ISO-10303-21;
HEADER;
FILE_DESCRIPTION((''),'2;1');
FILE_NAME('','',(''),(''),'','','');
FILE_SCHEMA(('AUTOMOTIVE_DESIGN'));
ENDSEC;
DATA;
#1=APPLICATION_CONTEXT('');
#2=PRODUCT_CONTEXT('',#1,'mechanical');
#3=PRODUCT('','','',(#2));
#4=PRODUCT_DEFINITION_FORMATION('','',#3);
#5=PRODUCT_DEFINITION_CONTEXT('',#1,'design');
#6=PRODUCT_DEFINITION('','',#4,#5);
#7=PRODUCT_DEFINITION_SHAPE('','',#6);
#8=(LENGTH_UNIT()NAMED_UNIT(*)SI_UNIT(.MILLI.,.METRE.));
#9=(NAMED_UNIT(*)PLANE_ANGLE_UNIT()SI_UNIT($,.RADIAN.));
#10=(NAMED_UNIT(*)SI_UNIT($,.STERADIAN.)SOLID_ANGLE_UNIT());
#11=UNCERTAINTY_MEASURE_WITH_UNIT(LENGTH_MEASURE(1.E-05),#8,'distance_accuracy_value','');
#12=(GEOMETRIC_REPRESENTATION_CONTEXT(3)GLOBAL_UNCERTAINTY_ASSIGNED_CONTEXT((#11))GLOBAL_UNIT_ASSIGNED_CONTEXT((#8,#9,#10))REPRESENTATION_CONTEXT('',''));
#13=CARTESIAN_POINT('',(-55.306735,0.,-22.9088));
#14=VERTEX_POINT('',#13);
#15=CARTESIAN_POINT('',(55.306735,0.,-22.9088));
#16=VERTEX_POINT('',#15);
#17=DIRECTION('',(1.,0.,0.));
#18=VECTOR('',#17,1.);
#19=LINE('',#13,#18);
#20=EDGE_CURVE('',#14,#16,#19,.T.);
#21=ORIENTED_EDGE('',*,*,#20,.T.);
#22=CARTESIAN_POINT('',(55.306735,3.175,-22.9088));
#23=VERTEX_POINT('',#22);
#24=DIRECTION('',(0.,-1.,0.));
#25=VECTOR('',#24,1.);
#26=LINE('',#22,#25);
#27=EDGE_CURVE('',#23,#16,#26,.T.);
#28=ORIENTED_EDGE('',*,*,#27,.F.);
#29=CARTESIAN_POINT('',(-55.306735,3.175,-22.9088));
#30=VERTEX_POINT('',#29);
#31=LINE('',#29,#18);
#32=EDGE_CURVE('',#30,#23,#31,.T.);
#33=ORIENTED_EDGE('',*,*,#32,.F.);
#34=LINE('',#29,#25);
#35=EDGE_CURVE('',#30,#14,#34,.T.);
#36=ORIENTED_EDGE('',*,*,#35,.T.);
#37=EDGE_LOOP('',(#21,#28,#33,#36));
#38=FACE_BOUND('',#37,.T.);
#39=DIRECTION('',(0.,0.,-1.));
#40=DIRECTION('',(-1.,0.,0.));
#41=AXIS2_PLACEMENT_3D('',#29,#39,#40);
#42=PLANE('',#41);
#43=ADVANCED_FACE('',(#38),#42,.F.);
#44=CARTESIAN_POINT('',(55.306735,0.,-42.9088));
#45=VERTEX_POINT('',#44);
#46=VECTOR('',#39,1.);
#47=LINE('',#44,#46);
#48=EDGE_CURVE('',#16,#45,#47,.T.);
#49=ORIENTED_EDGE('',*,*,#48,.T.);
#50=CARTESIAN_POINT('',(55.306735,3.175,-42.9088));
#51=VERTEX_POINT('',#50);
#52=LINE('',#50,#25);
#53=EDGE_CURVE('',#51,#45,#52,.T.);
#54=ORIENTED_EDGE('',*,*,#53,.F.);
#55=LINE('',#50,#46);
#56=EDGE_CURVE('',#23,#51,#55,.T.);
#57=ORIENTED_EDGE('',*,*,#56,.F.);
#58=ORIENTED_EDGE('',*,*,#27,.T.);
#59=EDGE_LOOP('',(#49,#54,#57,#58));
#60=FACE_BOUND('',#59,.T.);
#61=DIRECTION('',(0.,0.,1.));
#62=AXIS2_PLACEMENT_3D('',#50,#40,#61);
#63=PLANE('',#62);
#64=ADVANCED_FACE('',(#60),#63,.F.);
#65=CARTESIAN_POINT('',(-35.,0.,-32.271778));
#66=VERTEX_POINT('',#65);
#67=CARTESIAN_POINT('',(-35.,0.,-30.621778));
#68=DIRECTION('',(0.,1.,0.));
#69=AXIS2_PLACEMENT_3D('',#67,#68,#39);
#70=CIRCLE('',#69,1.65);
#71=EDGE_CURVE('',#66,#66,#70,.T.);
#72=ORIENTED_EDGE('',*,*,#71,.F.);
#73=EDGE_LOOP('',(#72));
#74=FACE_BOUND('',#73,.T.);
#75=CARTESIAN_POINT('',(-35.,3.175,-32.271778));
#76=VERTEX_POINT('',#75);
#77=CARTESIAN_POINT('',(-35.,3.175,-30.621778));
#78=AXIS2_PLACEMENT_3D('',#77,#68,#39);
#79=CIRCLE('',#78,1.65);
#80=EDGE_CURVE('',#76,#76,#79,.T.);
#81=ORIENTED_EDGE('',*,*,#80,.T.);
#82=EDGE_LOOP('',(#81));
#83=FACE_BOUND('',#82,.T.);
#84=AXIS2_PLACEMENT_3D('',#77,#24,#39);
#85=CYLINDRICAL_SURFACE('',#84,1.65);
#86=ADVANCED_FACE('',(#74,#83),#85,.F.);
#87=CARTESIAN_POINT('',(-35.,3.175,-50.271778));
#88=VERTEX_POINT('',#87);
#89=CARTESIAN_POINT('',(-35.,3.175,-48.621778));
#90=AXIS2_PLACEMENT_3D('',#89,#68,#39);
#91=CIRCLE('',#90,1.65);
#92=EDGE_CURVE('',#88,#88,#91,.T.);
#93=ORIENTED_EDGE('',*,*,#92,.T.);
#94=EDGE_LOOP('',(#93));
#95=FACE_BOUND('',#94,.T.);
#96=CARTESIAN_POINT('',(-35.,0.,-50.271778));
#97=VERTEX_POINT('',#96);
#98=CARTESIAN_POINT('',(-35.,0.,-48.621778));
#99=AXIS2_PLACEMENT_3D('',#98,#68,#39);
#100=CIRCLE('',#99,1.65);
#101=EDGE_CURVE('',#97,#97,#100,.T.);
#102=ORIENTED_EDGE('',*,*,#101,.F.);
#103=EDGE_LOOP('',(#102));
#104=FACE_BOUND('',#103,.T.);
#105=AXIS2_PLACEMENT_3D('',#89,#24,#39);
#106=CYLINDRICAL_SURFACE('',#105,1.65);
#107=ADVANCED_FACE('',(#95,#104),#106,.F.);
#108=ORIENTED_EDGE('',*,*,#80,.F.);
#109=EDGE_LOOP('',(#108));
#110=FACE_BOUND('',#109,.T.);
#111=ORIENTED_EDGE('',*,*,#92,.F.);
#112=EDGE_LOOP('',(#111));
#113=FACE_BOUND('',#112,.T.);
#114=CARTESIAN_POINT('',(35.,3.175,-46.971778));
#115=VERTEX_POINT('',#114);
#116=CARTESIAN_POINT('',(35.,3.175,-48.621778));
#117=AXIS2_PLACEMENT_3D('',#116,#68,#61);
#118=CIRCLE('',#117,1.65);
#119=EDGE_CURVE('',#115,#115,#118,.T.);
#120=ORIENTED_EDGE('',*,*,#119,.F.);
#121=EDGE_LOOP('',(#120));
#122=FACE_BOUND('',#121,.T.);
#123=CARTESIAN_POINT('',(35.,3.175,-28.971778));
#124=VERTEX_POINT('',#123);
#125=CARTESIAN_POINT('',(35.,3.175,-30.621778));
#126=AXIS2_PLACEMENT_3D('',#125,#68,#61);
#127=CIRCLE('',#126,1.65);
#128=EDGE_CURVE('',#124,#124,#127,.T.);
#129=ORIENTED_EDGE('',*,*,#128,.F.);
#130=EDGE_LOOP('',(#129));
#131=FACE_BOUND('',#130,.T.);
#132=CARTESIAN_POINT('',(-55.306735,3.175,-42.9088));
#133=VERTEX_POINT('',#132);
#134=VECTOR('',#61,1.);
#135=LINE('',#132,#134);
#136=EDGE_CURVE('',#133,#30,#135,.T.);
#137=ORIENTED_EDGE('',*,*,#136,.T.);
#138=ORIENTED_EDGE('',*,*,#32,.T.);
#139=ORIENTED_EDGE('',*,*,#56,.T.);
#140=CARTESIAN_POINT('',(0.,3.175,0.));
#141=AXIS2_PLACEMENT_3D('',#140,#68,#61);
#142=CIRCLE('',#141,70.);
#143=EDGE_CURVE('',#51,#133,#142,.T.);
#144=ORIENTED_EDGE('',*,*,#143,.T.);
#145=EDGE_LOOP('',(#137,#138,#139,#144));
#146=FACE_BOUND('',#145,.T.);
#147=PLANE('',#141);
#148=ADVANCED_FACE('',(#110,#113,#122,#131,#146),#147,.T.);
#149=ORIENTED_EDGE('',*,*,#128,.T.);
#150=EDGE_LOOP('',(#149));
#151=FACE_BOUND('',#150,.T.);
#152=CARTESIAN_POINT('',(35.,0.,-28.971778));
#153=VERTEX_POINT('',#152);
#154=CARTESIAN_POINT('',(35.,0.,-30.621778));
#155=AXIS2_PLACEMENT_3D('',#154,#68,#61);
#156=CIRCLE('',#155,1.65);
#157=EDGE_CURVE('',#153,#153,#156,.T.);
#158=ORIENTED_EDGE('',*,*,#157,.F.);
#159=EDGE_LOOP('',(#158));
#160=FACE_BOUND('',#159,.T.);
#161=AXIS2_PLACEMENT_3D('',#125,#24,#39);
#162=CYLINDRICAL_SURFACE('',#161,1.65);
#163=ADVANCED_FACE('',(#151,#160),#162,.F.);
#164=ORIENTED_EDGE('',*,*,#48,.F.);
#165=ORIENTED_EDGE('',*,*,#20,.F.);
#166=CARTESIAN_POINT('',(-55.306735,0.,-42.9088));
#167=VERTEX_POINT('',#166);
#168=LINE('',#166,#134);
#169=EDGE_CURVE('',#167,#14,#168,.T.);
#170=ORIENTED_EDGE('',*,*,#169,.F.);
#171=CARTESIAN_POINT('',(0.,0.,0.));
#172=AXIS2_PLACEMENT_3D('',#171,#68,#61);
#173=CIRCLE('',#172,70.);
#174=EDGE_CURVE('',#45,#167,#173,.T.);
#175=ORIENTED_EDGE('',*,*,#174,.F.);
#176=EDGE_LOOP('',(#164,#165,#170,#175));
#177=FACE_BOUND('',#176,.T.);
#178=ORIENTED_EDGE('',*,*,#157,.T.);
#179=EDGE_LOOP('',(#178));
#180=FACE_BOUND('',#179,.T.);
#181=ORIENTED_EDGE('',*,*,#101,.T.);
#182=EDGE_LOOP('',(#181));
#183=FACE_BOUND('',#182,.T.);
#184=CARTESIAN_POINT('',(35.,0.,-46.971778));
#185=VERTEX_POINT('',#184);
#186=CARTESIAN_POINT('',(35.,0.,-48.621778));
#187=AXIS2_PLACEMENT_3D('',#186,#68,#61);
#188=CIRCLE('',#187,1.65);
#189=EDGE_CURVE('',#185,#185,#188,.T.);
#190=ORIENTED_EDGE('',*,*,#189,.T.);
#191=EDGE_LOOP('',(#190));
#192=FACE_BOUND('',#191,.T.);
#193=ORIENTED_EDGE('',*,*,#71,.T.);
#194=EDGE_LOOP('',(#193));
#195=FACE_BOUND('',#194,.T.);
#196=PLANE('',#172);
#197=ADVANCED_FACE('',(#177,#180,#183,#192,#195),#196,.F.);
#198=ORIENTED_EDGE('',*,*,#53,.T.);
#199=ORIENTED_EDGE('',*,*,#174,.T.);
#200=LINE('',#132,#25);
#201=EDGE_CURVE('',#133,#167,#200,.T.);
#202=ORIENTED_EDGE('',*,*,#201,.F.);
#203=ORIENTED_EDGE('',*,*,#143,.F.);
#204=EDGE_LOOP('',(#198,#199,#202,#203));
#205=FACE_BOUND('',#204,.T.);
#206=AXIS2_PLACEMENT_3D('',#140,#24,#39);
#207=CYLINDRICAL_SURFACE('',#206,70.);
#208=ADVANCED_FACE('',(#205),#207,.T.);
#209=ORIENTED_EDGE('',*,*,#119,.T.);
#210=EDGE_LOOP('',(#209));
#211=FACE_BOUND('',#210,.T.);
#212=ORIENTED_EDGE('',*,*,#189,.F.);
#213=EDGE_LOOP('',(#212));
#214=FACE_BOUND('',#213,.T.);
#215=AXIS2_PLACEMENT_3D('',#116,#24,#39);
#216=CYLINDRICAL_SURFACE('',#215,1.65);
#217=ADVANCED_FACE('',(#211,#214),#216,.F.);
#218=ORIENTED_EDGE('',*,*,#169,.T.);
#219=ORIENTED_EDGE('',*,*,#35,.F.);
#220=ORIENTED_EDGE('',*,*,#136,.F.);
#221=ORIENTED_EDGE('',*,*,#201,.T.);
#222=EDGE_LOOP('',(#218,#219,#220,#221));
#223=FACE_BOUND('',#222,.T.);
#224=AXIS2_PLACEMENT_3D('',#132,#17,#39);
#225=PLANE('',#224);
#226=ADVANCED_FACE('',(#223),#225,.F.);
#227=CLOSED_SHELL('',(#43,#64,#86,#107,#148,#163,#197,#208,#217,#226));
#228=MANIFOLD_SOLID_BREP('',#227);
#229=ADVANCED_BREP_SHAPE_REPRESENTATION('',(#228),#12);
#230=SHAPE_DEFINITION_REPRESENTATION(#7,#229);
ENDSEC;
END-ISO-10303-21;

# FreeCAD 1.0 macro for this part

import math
import FreeCAD as App
import Part
import Sketcher

V = App.Vector

doc = App.newDocument("Part")
body = doc.addObject("PartDesign::Body", "Body")

# Sketch on XZ plane
sketch1 = doc.addObject("Sketcher::SketchObject", "Sketch")
body.addObject(sketch1)
sketch1.AttachmentSupport = (doc.XZ_Plane, [""])
sketch1.MapMode = "FlatFace"
sketch1.addGeometry(Part.LineSegment(V(-55.3, -42.9, 0), V(-55.3, -22.9, 0)), False)
sketch1.addGeometry(Part.LineSegment(V(-55.3, -22.9, 0), V(55.3, -22.9, 0)), False)
sketch1.addGeometry(Part.LineSegment(V(55.3, -22.9, 0), V(55.3, -42.9, 0)), False)
sketch1.addGeometry(Part.ArcOfCircle(Part.Circle(V(0, 0, 0), V(0, 0, 1), 70), math.radians(-142), math.radians(-38)), False)
sketch1.addGeometry(Part.Circle(V(-35, -30.6, 0), V(0, 0, 1), 1.6), False)
sketch1.addGeometry(Part.Circle(V(35, -30.6, 0), V(0, 0, 1), 1.6), False)
sketch1.addGeometry(Part.Circle(V(-35, -48.6, 0), V(0, 0, 1), 1.6), False)
sketch1.addGeometry(Part.Circle(V(35, -48.6, 0), V(0, 0, 1), 1.6), False)
sketch1.addConstraint(Sketcher.Constraint("Coincident", 0, 2, 1, 1))
sketch1.addConstraint(Sketcher.Constraint("Coincident", 1, 2, 2, 1))
sketch1.addConstraint(Sketcher.Constraint("Coincident", 2, 2, 3, 2))
sketch1.addConstraint(Sketcher.Constraint("Coincident", 3, 1, 0, 1))
sketch1.addConstraint(Sketcher.Constraint("Vertical", 0))
sketch1.addConstraint(Sketcher.Constraint("Horizontal", 1))
sketch1.addConstraint(Sketcher.Constraint("Vertical", 2))
sketch1.addConstraint(Sketcher.Constraint("Coincident", 3, 3, -1, 1))
sketch1.addConstraint(Sketcher.Constraint("Equal", 4, 5))
sketch1.addConstraint(Sketcher.Constraint("Equal", 5, 6))
sketch1.addConstraint(Sketcher.Constraint("Equal", 6, 7))
sketch1.addConstraint(Sketcher.Constraint("Symmetric", 4, 3, 5, 3, -2))
sketch1.addConstraint(Sketcher.Constraint("Symmetric", 6, 3, 7, 3, -2))
sketch1.addConstraint(Sketcher.Constraint("Horizontal", 2, 2, 3, 1))
sketch1.addConstraint(Sketcher.Constraint("Vertical", 4, 3, 6, 3))
sketch1.addConstraint(Sketcher.Constraint("Radius", 3, 70.0))
sketch1.addConstraint(Sketcher.Constraint("Diameter", 4, 3.3))
sketch1.addConstraint(Sketcher.Constraint("DistanceY", 0, 1, 0, 2, 20.0))
sketch1.addConstraint(Sketcher.Constraint("DistanceX", 4, 3, -1, 1, 35.0))
sketch1.addConstraint(Sketcher.Constraint("DistanceY", 6, 3, 4, 3, 18.0))
sketch1.addConstraint(Sketcher.Constraint("DistanceX", 1, 1, 1, 2, 110.61347))
sketch1.addConstraint(Sketcher.Constraint("DistanceY", 4, 3, -1, 1, 30.621778))
pad1 = doc.addObject("PartDesign::Pad", "Pad")
body.addObject(pad1)
pad1.Profile = sketch1
pad1.Length = 3.175
pad1.Reversed = True

doc.recompute()
